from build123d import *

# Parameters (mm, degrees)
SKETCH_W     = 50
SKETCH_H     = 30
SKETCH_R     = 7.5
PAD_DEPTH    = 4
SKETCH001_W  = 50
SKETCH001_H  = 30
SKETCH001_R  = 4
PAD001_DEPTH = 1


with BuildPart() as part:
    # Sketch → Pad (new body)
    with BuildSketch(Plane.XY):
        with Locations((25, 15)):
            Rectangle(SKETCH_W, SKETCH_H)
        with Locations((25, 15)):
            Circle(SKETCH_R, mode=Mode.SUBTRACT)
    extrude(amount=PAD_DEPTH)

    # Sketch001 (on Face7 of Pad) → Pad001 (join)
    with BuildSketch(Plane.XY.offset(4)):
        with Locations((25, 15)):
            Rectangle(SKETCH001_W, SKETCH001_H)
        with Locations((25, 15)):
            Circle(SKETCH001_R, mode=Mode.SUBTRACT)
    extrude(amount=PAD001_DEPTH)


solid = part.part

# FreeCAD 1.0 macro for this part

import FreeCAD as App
import Part
import Sketcher
from FreeCAD import Vector


def add_polygon(sketch, points):
    """Adds a closed chain of lines whose ends are joined by coincident constraints."""
    first, n = sketch.GeometryCount, len(points)
    for a, b in zip(points, points[1:] + points[:1]):
        sketch.addGeometry(Part.LineSegment(App.Vector(*a, 0), App.Vector(*b, 0)), False)
    for i in range(n):
        sketch.addConstraint(Sketcher.Constraint("Coincident", first + i, 2, first + (i + 1) % n, 1))

doc = App.newDocument("Part")
body = doc.addObject("PartDesign::Body", "Body")

# Sketch on XY plane
sketch1 = body.newObject("Sketcher::SketchObject", "Sketch")
sketch1.AttachmentSupport = (doc.getObject("XY_Plane"), [""])
sketch1.MapMode = "FlatFace"
add_polygon(sketch1, [(0, 30), (0, 0), (50, 0), (50, 30)])  # lines 0-3
sketch1.addGeometry(Part.Circle(Vector(25, 15, 0), Vector(0, 0, 1), 8), False)  # 4
sketch1.addConstraint([
    Sketcher.Constraint("Vertical", 0),
    Sketcher.Constraint("Horizontal", 1),
    Sketcher.Constraint("Vertical", 2),
    Sketcher.Constraint("Horizontal", 3),
    Sketcher.Constraint("Coincident", 0, 2, -1, 1),
    Sketcher.Constraint("Diameter", 4, 15.0),
    Sketcher.Constraint("DistanceX", 1, 1, 1, 2, 50.0),
    Sketcher.Constraint("DistanceY", 0, 2, 0, 1, 30.0),
    Sketcher.Constraint("DistanceX", -1, 1, 4, 3, 25.0),
    Sketcher.Constraint("DistanceY", -1, 1, 4, 3, 15.0),
])
pad1 = body.newObject("PartDesign::Pad", "Pad")
pad1.Profile = sketch1
pad1.Length = 4

# Sketch on XY plane
sketch2 = body.newObject("Sketcher::SketchObject", "Sketch001")
sketch2.AttachmentSupport = (doc.getObject("XY_Plane"), [""])
sketch2.MapMode = "FlatFace"
sketch2.AttachmentOffset = App.Placement(Vector(0, 0, 4), App.Rotation())
add_polygon(sketch2, [(0, 30), (0, 0), (50, 0), (50, 30)])  # lines 0-3
sketch2.addGeometry(Part.Circle(Vector(25, 15, 0), Vector(0, 0, 1), 4), False)  # 4
sketch2.addConstraint([
    Sketcher.Constraint("Vertical", 0),
    Sketcher.Constraint("Horizontal", 1),
    Sketcher.Constraint("Vertical", 2),
    Sketcher.Constraint("Horizontal", 3),
    Sketcher.Constraint("Coincident", 0, 2, -1, 1),
    Sketcher.Constraint("Diameter", 4, 8.0),
    Sketcher.Constraint("DistanceX", 1, 1, 1, 2, 50.0),
    Sketcher.Constraint("DistanceY", 0, 2, 0, 1, 30.0),
    Sketcher.Constraint("DistanceX", -1, 1, 4, 3, 25.0),
    Sketcher.Constraint("DistanceY", -1, 1, 4, 3, 15.0),
])
pad2 = body.newObject("PartDesign::Pad", "Pad001")
pad2.Profile = sketch2
pad2.Length = 1

doc.recompute()
